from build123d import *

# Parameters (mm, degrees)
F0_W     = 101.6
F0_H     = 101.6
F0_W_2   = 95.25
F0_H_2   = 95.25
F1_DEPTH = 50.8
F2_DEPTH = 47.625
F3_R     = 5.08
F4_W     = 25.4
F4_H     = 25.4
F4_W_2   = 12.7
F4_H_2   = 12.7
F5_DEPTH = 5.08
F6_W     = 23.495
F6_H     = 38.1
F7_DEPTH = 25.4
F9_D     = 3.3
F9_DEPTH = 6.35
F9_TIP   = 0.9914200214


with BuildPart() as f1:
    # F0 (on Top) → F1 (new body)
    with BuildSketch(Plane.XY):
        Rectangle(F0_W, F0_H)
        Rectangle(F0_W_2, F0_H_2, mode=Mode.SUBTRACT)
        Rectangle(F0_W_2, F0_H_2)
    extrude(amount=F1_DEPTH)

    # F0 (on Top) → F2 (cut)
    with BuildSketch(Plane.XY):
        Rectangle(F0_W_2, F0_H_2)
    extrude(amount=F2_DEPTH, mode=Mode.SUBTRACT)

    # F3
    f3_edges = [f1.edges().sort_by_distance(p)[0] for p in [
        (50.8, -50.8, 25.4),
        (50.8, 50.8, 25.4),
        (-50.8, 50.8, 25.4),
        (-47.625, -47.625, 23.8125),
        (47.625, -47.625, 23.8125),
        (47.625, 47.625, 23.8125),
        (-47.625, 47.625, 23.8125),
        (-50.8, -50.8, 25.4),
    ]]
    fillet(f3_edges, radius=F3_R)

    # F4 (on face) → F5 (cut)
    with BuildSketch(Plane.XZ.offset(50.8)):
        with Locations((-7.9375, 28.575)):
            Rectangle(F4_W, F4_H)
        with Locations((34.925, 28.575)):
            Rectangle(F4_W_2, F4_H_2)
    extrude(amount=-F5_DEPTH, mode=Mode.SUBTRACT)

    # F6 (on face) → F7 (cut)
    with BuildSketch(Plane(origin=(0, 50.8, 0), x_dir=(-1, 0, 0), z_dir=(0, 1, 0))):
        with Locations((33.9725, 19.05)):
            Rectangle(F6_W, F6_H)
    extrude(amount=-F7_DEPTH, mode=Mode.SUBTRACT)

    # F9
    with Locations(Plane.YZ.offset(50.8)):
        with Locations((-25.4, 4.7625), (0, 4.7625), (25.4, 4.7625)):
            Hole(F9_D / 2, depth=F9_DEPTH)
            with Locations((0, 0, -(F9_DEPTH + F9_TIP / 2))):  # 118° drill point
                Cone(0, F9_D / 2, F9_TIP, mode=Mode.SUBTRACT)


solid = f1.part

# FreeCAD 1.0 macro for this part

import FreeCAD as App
import Part
import Sketcher

V = App.Vector
Q = App.Units.Quantity


def edges_at(feature, points):
    """Names of the edges that pass closest to the given points."""
    edges = feature.Shape.Edges
    near = lambda p: min(range(len(edges)), key=lambda i: edges[i].distToShape(Part.Vertex(*p))[0])
    return sorted({f"Edge{near(p) + 1}" for p in points})


def add_polygon(sketch, points):
    """Adds a closed chain of lines whose ends are joined by coincident constraints."""
    first, n = sketch.GeometryCount, len(points)
    for a, b in zip(points, points[1:] + points[:1]):
        sketch.addGeometry(Part.LineSegment(App.Vector(*a, 0), App.Vector(*b, 0)), False)
    for i in range(n):
        sketch.addConstraint(Sketcher.Constraint("Coincident", first + i, 2, first + (i + 1) % n, 1))

doc = App.newDocument("Part")
body = doc.addObject("PartDesign::Body", "Body")

sketch1 = body.newObject("Sketcher::SketchObject", "Sketch")
sketch1.AttachmentSupport = (doc.getObject("XY_Plane"), [""])
sketch1.MapMode = "FlatFace"
add_polygon(sketch1, [(-51, 51), (-51, -51), (51, -51), (51, 51)])
sketch1.addConstraint(Sketcher.Constraint("Vertical", 0))
sketch1.addConstraint(Sketcher.Constraint("Horizontal", 1))
sketch1.addConstraint(Sketcher.Constraint("Vertical", 2))
sketch1.addConstraint(Sketcher.Constraint("Horizontal", 3))
sketch1.addConstraint(Sketcher.Constraint("Symmetric", 0, 2, 2, 2, -1, 1))
sketch1.addConstraint(Sketcher.Constraint("Equal", 3, 0))
sketch1.addConstraint(Sketcher.Constraint("DistanceX", 1, 1, 1, 2, Q("4 in")))
pad1 = body.newObject("PartDesign::Pad", "Pad")
pad1.Profile = sketch1
pad1.Length = Q("2 in")

sketch2 = body.newObject("Sketcher::SketchObject", "Sketch001")
sketch2.AttachmentSupport = (doc.getObject("XY_Plane"), [""])
sketch2.MapMode = "FlatFace"
add_polygon(sketch2, [(-48, 48), (-48, -48), (48, -48), (48, 48)])
sketch2.addConstraint(Sketcher.Constraint("Vertical", 0))
sketch2.addConstraint(Sketcher.Constraint("Horizontal", 1))
sketch2.addConstraint(Sketcher.Constraint("Vertical", 2))
sketch2.addConstraint(Sketcher.Constraint("Horizontal", 3))
sketch2.addConstraint(Sketcher.Constraint("Symmetric", 0, 2, 2, 2, -1, 1))
sketch2.addConstraint(Sketcher.Constraint("Equal", 3, 0))
sketch2.addConstraint(Sketcher.Constraint("DistanceX", 1, 1, 1, 2, Q("3.75 in")))
pocket1 = body.newObject("PartDesign::Pocket", "Pocket")
pocket1.Profile = sketch2
pocket1.Length = Q("1.875 in")
pocket1.Reversed = True
doc.recompute()

fillet = body.newObject("PartDesign::Fillet", "Fillet")
fillet.Base = (pocket1, edges_at(pocket1, [
    (50.8, -50.8, 25.4),
    (50.8, 50.8, 25.4),
    (-50.8, 50.8, 25.4),
    (-47.625, -47.625, 23.812),
    (47.625, -47.625, 23.812),
    (47.625, 47.625, 23.812),
    (-47.625, 47.625, 23.812),
    (-50.8, -50.8, 25.4),
]))
fillet.Radius = Q("0.2 in")

sketch3 = body.newObject("Sketcher::SketchObject", "Sketch002")
sketch3.AttachmentSupport = (doc.getObject("XZ_Plane"), [""])
sketch3.MapMode = "FlatFace"
sketch3.AttachmentOffset = App.Placement(V(0, 0, 2 * 25.4), App.Rotation())
add_polygon(sketch3, [(-21, 41), (-21, 16), (5, 16), (5, 41)])
add_polygon(sketch3, [(29, 35), (29, 22), (41, 22), (41, 35)])
sketch3.addConstraint(Sketcher.Constraint("Vertical", 0))
sketch3.addConstraint(Sketcher.Constraint("Horizontal", 1))
sketch3.addConstraint(Sketcher.Constraint("Vertical", 2))
sketch3.addConstraint(Sketcher.Constraint("Horizontal", 3))
sketch3.addConstraint(Sketcher.Constraint("Vertical", 4))
sketch3.addConstraint(Sketcher.Constraint("Horizontal", 5))
sketch3.addConstraint(Sketcher.Constraint("Vertical", 6))
sketch3.addConstraint(Sketcher.Constraint("Horizontal", 7))
sketch3.addConstraint(Sketcher.Constraint("Equal", 3, 0))
sketch3.addConstraint(Sketcher.Constraint("Equal", 7, 4))
sketch3.addConstraint(Sketcher.Constraint("DistanceX", 1, 1, 1, 2, Q("1 in")))
sketch3.addConstraint(Sketcher.Constraint("DistanceX", 5, 1, 5, 2, Q("0.5 in")))
sketch3.addConstraint(Sketcher.Constraint("DistanceY", 1, 2, 4, 2, Q("0.25 in")))
sketch3.addConstraint(Sketcher.Constraint("DistanceX", 0, 2, -1, 1, Q("0.8125 in")))
sketch3.addConstraint(Sketcher.Constraint("DistanceY", -1, 1, 0, 2, Q("0.625 in")))
sketch3.addConstraint(Sketcher.Constraint("DistanceX", -1, 1, 4, 2, Q("1.125 in")))
pocket2 = body.newObject("PartDesign::Pocket", "Pocket001")
pocket2.Profile = sketch3
pocket2.Length = Q("0.2 in")

sketch4 = body.newObject("Sketcher::SketchObject", "Sketch003")
sketch4.AttachmentSupport = (doc.getObject("XZ_Plane"), [""])
sketch4.MapMode = "FlatFace"
sketch4.AttachmentOffset = App.Placement(V(0, 0, -2 * 25.4), App.Rotation())
add_polygon(sketch4, [(-22, 38), (-22, 0), (-46, 0), (-46, 38)])
sketch4.addConstraint(Sketcher.Constraint("Vertical", 0))
sketch4.addConstraint(Sketcher.Constraint("Horizontal", 1))
sketch4.addConstraint(Sketcher.Constraint("Vertical", 2))
sketch4.addConstraint(Sketcher.Constraint("Horizontal", 3))
sketch4.addConstraint(Sketcher.Constraint("PointOnObject", 0, 2, -1))
sketch4.addConstraint(Sketcher.Constraint("DistanceY", 0, 2, 0, 1, Q("1.5 in")))
sketch4.addConstraint(Sketcher.Constraint("DistanceX", 1, 2, -1, 1, Q("1.8 in")))
sketch4.addConstraint(Sketcher.Constraint("DistanceX", 1, 2, 1, 1, Q("0.925 in")))
pocket3 = body.newObject("PartDesign::Pocket", "Pocket002")
pocket3.Profile = sketch4
pocket3.Length = Q("1 in")
pocket3.Reversed = True

sketch5 = body.newObject("Sketcher::SketchObject", "Sketch004")
sketch5.AttachmentSupport = (doc.getObject("YZ_Plane"), [""])
sketch5.MapMode = "FlatFace"
sketch5.AttachmentOffset = App.Placement(V(0, 0, 2 * 25.4), App.Rotation())
sketch5.addGeometry(Part.Circle(V(-25.4, 4.8, 0), V(0, 0, 1), 1.6), False)
sketch5.addGeometry(Part.Circle(V(0, 4.8, 0), V(0, 0, 1), 1.6), False)
sketch5.addGeometry(Part.Circle(V(25.4, 4.8, 0), V(0, 0, 1), 1.6), False)
sketch5.addConstraint(Sketcher.Constraint("Equal", 0, 1))
sketch5.addConstraint(Sketcher.Constraint("Equal", 1, 2))
sketch5.addConstraint(Sketcher.Constraint("Symmetric", 0, 3, 2, 3, -2))
sketch5.addConstraint(Sketcher.Constraint("PointOnObject", 1, 3, -2))
sketch5.addConstraint(Sketcher.Constraint("Horizontal", 0, 3, 1, 3))
sketch5.addConstraint(Sketcher.Constraint("DistanceX", 0, 3, -1, 1, Q("1 in")))
sketch5.addConstraint(Sketcher.Constraint("Diameter", 0, Q("3.3 mm")))
sketch5.addConstraint(Sketcher.Constraint("DistanceY", -1, 1, 0, 3, Q("0.1875 in")))
doc.recompute()
hole = body.newObject("PartDesign::Hole", "Hole")
hole.Profile = sketch5
hole.ThreadType = "None"
hole.Diameter = 3.3
hole.DepthType = "Dimension"
hole.Depth = Q("0.25 in")
hole.DrillPoint = "Angled"
hole.DrillPointAngle = 118

doc.recompute()
